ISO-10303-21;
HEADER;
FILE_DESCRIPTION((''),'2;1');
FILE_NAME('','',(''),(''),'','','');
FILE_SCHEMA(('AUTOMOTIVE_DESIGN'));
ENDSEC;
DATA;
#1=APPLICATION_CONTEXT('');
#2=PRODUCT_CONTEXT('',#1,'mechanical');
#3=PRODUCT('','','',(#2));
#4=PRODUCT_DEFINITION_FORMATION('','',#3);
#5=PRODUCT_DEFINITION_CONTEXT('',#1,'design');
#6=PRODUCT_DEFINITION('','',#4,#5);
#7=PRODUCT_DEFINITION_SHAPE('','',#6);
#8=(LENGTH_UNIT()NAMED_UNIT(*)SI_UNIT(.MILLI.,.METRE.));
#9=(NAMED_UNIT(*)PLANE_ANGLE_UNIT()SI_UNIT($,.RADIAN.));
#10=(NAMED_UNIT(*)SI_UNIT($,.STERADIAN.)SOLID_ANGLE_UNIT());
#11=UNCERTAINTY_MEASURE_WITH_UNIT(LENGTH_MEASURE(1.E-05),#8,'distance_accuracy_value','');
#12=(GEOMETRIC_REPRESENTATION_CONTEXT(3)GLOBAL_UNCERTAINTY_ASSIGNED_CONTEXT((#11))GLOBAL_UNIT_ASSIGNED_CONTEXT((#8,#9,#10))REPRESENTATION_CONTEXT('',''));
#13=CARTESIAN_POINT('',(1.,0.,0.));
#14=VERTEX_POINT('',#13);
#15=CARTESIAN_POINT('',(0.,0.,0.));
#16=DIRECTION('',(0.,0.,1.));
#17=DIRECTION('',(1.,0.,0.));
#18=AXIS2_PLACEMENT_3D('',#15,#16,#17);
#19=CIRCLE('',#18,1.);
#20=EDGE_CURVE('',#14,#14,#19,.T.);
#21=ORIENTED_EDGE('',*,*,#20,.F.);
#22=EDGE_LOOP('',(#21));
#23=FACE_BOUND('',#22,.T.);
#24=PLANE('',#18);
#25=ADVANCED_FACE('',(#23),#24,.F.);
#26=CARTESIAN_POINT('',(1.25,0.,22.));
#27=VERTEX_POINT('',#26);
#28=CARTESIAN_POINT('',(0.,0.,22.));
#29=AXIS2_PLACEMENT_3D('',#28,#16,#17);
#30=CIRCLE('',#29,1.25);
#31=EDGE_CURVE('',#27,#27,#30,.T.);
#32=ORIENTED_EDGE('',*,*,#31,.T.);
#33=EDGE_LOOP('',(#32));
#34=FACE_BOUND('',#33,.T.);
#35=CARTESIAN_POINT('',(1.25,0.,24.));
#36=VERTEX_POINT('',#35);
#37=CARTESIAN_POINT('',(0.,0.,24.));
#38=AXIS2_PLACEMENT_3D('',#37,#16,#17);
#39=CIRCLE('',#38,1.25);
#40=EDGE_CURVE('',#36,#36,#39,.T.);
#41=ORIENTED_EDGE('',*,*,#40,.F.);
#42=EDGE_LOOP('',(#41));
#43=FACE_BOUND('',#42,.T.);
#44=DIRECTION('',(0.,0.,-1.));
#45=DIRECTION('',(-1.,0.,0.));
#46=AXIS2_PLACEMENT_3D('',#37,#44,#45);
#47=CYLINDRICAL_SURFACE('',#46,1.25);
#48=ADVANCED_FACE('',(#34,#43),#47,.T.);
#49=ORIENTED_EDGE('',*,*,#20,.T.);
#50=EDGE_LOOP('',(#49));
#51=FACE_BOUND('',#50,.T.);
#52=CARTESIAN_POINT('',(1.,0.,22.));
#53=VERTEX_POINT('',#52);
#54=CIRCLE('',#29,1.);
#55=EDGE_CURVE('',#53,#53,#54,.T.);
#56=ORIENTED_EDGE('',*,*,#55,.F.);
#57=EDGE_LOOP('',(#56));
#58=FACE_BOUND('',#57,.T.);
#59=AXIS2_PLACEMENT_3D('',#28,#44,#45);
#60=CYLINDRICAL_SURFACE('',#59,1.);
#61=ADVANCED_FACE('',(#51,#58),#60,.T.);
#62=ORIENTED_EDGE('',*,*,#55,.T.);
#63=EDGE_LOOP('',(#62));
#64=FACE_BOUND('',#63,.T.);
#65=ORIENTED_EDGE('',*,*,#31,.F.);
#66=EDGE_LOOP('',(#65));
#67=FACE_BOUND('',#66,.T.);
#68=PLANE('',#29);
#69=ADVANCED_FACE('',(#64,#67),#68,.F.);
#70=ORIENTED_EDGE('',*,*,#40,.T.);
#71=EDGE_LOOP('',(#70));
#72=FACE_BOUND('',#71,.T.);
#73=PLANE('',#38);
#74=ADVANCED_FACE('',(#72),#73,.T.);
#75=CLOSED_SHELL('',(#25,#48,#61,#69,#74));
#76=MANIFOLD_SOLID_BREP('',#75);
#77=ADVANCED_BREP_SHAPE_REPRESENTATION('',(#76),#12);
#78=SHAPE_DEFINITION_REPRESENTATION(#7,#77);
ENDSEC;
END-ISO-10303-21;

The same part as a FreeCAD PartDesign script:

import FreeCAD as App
import Part
import Sketcher
Q = App.Units.Quantity

doc = App.newDocument("Part")
body = doc.addObject("PartDesign::Body", "Body")

# Sketch on XY plane
sketch1 = doc.addObject("Sketcher::SketchObject", "Sketch")
body.addObject(sketch1)
sketch1.AttachmentSupport = (doc.XY_Plane, [""])
sketch1.MapMode = "FlatFace"
sketch1.addGeometry(Part.Circle(App.Vector(0, 0, 0), App.Vector(0, 0, 1), 1), False)
sketch1.addConstraint([
    Sketcher.Constraint("Coincident", 0, 3, -1, 1),
    Sketcher.Constraint("Diameter", 0, Q("2 mm")),
])
pad1 = doc.addObject("PartDesign::Pad", "Pad")
body.addObject(pad1)
pad1.Profile = sketch1
pad1.Length = 22

# Sketch on XY plane
sketch2 = doc.addObject("Sketcher::SketchObject", "Sketch001")
body.addObject(sketch2)
sketch2.AttachmentSupport = (doc.XY_Plane, [""])
sketch2.MapMode = "FlatFace"
sketch2.AttachmentOffset = App.Placement(App.Vector(0, 0, 22), App.Rotation())
sketch2.addGeometry(Part.Circle(App.Vector(0, 0, 0), App.Vector(0, 0, 1), 1.2), False)
sketch2.addConstraint([
    Sketcher.Constraint("Coincident", 0, 3, -1, 1),
    Sketcher.Constraint("Diameter", 0, Q("2.5 mm")),
])
pad2 = doc.addObject("PartDesign::Pad", "Pad001")
body.addObject(pad2)
pad2.Profile = sketch2
pad2.Length = 2

doc.recompute()
